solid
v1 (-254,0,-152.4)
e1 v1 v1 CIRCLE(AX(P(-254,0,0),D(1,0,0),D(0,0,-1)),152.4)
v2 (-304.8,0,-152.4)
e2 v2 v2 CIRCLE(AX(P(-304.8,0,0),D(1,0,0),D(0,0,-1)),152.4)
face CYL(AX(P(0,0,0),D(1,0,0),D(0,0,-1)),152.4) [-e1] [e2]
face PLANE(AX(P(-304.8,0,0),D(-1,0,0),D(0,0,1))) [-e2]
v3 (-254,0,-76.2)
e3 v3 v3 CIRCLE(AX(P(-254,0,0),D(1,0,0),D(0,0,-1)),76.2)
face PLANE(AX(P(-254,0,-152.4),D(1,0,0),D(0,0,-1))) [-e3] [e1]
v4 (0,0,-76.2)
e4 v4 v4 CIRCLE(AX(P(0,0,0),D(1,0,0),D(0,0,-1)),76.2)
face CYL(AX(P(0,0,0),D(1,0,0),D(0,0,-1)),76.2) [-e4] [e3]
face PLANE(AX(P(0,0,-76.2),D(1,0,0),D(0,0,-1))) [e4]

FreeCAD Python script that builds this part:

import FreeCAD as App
import Part
import Sketcher

V = App.Vector
Q = App.Units.Quantity

doc = App.newDocument("Part")
body = doc.addObject("PartDesign::Body", "Body")

# Sketch on XZ plane
sketch1 = body.newObject("Sketcher::SketchObject", "Sketch")
sketch1.AttachmentSupport = (doc.getObject("XZ_Plane"), [""])
sketch1.MapMode = "FlatFace"
sketch1.addGeometry([
    Part.LineSegment(V(-305, 0, 0), V(0, 0, 0)),  # 0
    Part.LineSegment(V(0, 0, 0), V(0, -76, 0)),  # 1
    Part.LineSegment(V(0, -76, 0), V(-254, -76, 0)),  # 2
    Part.LineSegment(V(-254, -76, 0), V(-254, -152, 0)),  # 3
    Part.LineSegment(V(-254, -152, 0), V(-305, -152, 0)),  # 4
    Part.LineSegment(V(-305, -152, 0), V(-305, 0, 0)),  # 5
], False)
sketch1.addConstraint([
    Sketcher.Constraint("Coincident", 0, 2, 1, 1),
    Sketcher.Constraint("Coincident", 1, 2, 2, 1),
    Sketcher.Constraint("Coincident", 2, 2, 3, 1),
    Sketcher.Constraint("Coincident", 3, 2, 4, 1),
    Sketcher.Constraint("Coincident", 4, 2, 5, 1),
    Sketcher.Constraint("Coincident", 5, 2, 0, 1),
    Sketcher.Constraint("Horizontal", 0),
    Sketcher.Constraint("Vertical", 1),
    Sketcher.Constraint("Horizontal", 2),
    Sketcher.Constraint("Vertical", 3),
    Sketcher.Constraint("Horizontal", 4),
    Sketcher.Constraint("Vertical", 5),
    Sketcher.Constraint("Coincident", 0, 2, -1, 1),
    Sketcher.Constraint("Equal", 1, 3),
    Sketcher.Constraint("DistanceX", 0, 1, 0, 2, Q("12 in")),
    Sketcher.Constraint("DistanceX", 2, 2, 2, 1, Q("10 in")),
    Sketcher.Constraint("DistanceY", 1, 2, 1, 1, Q("3 in")),
])
revolution = body.newObject("PartDesign::Revolution", "Revolution")
revolution.Profile = sketch1
revolution.ReferenceAxis = (sketch1, ["H_Axis"])
revolution.Angle = 360

doc.recompute()
